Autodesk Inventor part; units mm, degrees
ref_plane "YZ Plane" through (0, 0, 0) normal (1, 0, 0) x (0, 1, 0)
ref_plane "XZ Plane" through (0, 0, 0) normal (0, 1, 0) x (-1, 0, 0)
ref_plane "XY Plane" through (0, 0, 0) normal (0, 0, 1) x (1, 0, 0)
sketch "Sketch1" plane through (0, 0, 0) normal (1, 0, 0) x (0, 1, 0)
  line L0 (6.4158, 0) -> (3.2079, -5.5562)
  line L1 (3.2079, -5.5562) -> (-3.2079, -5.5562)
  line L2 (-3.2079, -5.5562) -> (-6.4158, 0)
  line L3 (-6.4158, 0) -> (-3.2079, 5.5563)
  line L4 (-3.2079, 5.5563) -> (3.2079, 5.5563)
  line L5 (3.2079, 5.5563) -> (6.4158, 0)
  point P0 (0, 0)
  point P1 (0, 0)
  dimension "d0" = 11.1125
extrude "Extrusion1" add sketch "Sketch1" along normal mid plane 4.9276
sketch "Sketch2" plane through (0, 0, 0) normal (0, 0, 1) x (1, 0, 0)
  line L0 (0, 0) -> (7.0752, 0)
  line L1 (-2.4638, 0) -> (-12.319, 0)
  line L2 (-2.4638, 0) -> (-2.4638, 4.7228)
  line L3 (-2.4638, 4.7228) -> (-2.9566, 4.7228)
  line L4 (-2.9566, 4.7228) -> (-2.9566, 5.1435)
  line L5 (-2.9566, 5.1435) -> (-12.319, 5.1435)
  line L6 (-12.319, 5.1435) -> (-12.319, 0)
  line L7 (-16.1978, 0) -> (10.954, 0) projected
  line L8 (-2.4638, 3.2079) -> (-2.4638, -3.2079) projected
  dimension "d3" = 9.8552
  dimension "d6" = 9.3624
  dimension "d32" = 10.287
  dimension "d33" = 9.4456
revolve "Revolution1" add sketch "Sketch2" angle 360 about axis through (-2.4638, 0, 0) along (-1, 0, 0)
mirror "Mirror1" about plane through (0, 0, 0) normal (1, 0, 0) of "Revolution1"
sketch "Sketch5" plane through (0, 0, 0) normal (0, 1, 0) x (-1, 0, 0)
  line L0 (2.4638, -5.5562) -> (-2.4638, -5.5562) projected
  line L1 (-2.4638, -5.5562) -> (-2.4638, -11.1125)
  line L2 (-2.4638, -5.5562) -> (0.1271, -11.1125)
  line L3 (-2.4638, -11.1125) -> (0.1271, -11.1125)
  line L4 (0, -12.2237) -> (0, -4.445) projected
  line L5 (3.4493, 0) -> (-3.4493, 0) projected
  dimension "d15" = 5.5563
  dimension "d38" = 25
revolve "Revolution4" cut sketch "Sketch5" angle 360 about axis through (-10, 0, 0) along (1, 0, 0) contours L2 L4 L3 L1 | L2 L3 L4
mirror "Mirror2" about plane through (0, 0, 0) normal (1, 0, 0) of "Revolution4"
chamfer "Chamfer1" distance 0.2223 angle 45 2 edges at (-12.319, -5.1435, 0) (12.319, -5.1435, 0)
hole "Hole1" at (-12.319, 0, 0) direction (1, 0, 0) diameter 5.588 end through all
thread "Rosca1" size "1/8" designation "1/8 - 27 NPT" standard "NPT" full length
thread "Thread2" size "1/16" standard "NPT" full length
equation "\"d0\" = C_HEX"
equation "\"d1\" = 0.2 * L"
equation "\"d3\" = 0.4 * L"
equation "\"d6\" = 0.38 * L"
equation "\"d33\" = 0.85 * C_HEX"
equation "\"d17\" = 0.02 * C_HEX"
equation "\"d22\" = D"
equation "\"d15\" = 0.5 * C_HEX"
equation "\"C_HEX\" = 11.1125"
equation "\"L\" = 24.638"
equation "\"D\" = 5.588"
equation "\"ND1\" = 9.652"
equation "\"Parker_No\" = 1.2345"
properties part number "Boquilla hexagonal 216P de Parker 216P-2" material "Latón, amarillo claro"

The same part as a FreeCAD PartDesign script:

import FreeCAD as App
import Part
import Sketcher
Q = App.Units.Quantity


def edges_at(feature, points):
    """Names of the edges that pass closest to the given points."""
    edges = feature.Shape.Edges
    near = lambda p: min(range(len(edges)), key=lambda i: edges[i].distToShape(Part.Vertex(*p))[0])
    return sorted({f"Edge{near(p) + 1}" for p in points})

doc = App.newDocument("Part")
body = doc.addObject("PartDesign::Body", "Body")

# Sketch on YZ plane
sketch1 = body.newObject("Sketcher::SketchObject", "Sketch")
sketch1.AttachmentSupport = (doc.getObject("YZ_Plane"), [""])
sketch1.MapMode = "FlatFace"
sketch1.addGeometry([
    Part.LineSegment(App.Vector(3, -6, 0), App.Vector(6, 0, 0)),  # 0
    Part.LineSegment(App.Vector(6, 0, 0), App.Vector(3, 6, 0)),  # 1
    Part.LineSegment(App.Vector(3, 6, 0), App.Vector(-3, 6, 0)),  # 2
    Part.LineSegment(App.Vector(-3, 6, 0), App.Vector(-6, 0, 0)),  # 3
    Part.LineSegment(App.Vector(-6, 0, 0), App.Vector(-3, -6, 0)),  # 4
    Part.LineSegment(App.Vector(-3, -6, 0), App.Vector(3, -6, 0)),  # 5
], False)
sketch1.addConstraint([
    Sketcher.Constraint("Coincident", 0, 2, 1, 1),
    Sketcher.Constraint("Coincident", 1, 2, 2, 1),
    Sketcher.Constraint("Coincident", 2, 2, 3, 1),
    Sketcher.Constraint("Coincident", 3, 2, 4, 1),
    Sketcher.Constraint("Coincident", 4, 2, 5, 1),
    Sketcher.Constraint("Coincident", 5, 2, 0, 1),
    Sketcher.Constraint("Horizontal", 2),
    Sketcher.Constraint("Horizontal", 5),
    Sketcher.Constraint("Symmetric", 0, 2, 3, 2, -1, 1),
    Sketcher.Constraint("Symmetric", 1, 2, 4, 2, -1, 1),
    Sketcher.Constraint("PointOnObject", 0, 2, -1),
    Sketcher.Constraint("Parallel", 0, 3),
    Sketcher.Constraint("Vertical", 2, 2, 4, 2),
    Sketcher.Constraint("Angle", 0, Q("59.9998 deg")),
    Sketcher.Constraint("DistanceY", 4, 2, 2, 2, Q("0.4375 in")),
    Sketcher.Constraint("DistanceX", 2, 2, 2, 1, Q("0.2526 in")),
])
pad1 = body.newObject("PartDesign::Pad", "Pad")
pad1.Profile = sketch1
pad1.Length = Q("0.194 in")
pad1.Midplane = True

# Sketch on XY plane
sketch2 = body.newObject("Sketcher::SketchObject", "Sketch001")
sketch2.AttachmentSupport = (doc.getObject("XY_Plane"), [""])
sketch2.MapMode = "FlatFace"
sketch2.addGeometry([
    Part.LineSegment(App.Vector(-12.32, 0, 0), App.Vector(-2.46, 0, 0)),  # 0
    Part.LineSegment(App.Vector(-2.46, 0, 0), App.Vector(-2.46, 4.72, 0)),  # 1
    Part.LineSegment(App.Vector(-2.46, 4.72, 0), App.Vector(-2.96, 4.72, 0)),  # 2
    Part.LineSegment(App.Vector(-2.96, 4.72, 0), App.Vector(-2.96, 5.14, 0)),  # 3
    Part.LineSegment(App.Vector(-2.96, 5.14, 0), App.Vector(-12.32, 5.14, 0)),  # 4
    Part.LineSegment(App.Vector(-12.32, 5.14, 0), App.Vector(-12.32, 0, 0)),  # 5
], False)
sketch2.addConstraint([
    Sketcher.Constraint("Coincident", 0, 2, 1, 1),
    Sketcher.Constraint("Coincident", 1, 2, 2, 1),
    Sketcher.Constraint("Coincident", 2, 2, 3, 1),
    Sketcher.Constraint("Coincident", 3, 2, 4, 1),
    Sketcher.Constraint("Coincident", 4, 2, 5, 1),
    Sketcher.Constraint("Coincident", 5, 2, 0, 1),
    Sketcher.Constraint("Horizontal", 0),
    Sketcher.Constraint("Vertical", 1),
    Sketcher.Constraint("Horizontal", 2),
    Sketcher.Constraint("Vertical", 3),
    Sketcher.Constraint("Horizontal", 4),
    Sketcher.Constraint("Vertical", 5),
    Sketcher.Constraint("PointOnObject", 0, 2, -1),
    Sketcher.Constraint("DistanceX", 0, 1, 0, 2, Q("0.388 in")),
    Sketcher.Constraint("DistanceX", 4, 2, 4, 1, Q("0.3686 in")),
    Sketcher.Constraint("DistanceY", 5, 2, 5, 1, Q("0.2025 in")),
    Sketcher.Constraint("DistanceX", 0, 2, -1, 1, Q("0.097 in")),
    Sketcher.Constraint("DistanceY", 1, 1, 1, 2, Q("4.7228 mm")),
])
revolution = body.newObject("PartDesign::Revolution", "Revolution")
revolution.Profile = sketch2
revolution.ReferenceAxis = (sketch2, ["H_Axis"])
revolution.Angle = 360
doc.recompute()

mirrored = body.newObject("PartDesign::Mirrored", "Mirrored")
mirrored.Originals = [revolution]
mirrored.MirrorPlane = (doc.getObject("YZ_Plane"), [""])
body.Tip = mirrored

# Sketch on XZ plane
sketch3 = body.newObject("Sketcher::SketchObject", "Sketch002")
sketch3.AttachmentSupport = (doc.getObject("XZ_Plane"), [""])
sketch3.MapMode = "FlatFace"
sketch3.addGeometry([
    Part.LineSegment(App.Vector(2.5, -5.6, 0), App.Vector(2.5, -11.1, 0)),
    Part.LineSegment(App.Vector(2.5, -11.1, 0), App.Vector(-0.1, -11.1, 0)),
    Part.LineSegment(App.Vector(-0.1, -11.1, 0), App.Vector(2.5, -5.6, 0)),
], False)
sketch3.addConstraint([
    Sketcher.Constraint("Coincident", 0, 2, 1, 1),
    Sketcher.Constraint("Coincident", 1, 2, 2, 1),
    Sketcher.Constraint("Coincident", 2, 2, 0, 1),
    Sketcher.Constraint("Vertical", 0),
    Sketcher.Constraint("Horizontal", 1),
    Sketcher.Constraint("DistanceY", 0, 2, 0, 1, Q("0.218752 in")),
    Sketcher.Constraint("DistanceY", 2, 2, -1, 1, Q("0.218748 in")),
    Sketcher.Constraint("Angle", 2, Q("65.0004 deg")),
    Sketcher.Constraint("DistanceX", -1, 1, 0, 2, Q("0.097 in")),
])
groove = body.newObject("PartDesign::Groove", "Groove")
groove.Profile = sketch3
groove.ReferenceAxis = (sketch3, ["H_Axis"])
groove.Angle = 360
doc.recompute()

mirrored2 = body.newObject("PartDesign::Mirrored", "Mirrored001")
mirrored2.Originals = [groove]
mirrored2.MirrorPlane = (doc.getObject("YZ_Plane"), [""])
body.Tip = mirrored2
doc.recompute()

chamfer = body.newObject("PartDesign::Chamfer", "Chamfer")
chamfer.Base = (mirrored2, edges_at(mirrored2, [(-12.319, -5.144, 0), (12.319, -5.144, 0)]))
chamfer.Size = 0.2223

# Sketch on YZ plane
sketch4 = body.newObject("Sketcher::SketchObject", "Sketch003")
sketch4.AttachmentSupport = (doc.getObject("YZ_Plane"), [""])
sketch4.MapMode = "FlatFace"
sketch4.AttachmentOffset = App.Placement(App.Vector(0, 0, -0.485 * 25.4), App.Rotation())
sketch4.addGeometry(Part.Circle(App.Vector(0, 0, 0), App.Vector(0, 0, 1), 2.8), False)
sketch4.addConstraint([
    Sketcher.Constraint("Coincident", 0, 3, -1, 1),
    Sketcher.Constraint("Diameter", 0, Q("0.22 in")),
])
doc.recompute()
hole = body.newObject("PartDesign::Hole", "Hole")
hole.Profile = sketch4
hole.ThreadType = "None"
hole.Diameter = Q("0.22 in")
hole.DepthType = "ThroughAll"
hole.Reversed = True

doc.recompute()
